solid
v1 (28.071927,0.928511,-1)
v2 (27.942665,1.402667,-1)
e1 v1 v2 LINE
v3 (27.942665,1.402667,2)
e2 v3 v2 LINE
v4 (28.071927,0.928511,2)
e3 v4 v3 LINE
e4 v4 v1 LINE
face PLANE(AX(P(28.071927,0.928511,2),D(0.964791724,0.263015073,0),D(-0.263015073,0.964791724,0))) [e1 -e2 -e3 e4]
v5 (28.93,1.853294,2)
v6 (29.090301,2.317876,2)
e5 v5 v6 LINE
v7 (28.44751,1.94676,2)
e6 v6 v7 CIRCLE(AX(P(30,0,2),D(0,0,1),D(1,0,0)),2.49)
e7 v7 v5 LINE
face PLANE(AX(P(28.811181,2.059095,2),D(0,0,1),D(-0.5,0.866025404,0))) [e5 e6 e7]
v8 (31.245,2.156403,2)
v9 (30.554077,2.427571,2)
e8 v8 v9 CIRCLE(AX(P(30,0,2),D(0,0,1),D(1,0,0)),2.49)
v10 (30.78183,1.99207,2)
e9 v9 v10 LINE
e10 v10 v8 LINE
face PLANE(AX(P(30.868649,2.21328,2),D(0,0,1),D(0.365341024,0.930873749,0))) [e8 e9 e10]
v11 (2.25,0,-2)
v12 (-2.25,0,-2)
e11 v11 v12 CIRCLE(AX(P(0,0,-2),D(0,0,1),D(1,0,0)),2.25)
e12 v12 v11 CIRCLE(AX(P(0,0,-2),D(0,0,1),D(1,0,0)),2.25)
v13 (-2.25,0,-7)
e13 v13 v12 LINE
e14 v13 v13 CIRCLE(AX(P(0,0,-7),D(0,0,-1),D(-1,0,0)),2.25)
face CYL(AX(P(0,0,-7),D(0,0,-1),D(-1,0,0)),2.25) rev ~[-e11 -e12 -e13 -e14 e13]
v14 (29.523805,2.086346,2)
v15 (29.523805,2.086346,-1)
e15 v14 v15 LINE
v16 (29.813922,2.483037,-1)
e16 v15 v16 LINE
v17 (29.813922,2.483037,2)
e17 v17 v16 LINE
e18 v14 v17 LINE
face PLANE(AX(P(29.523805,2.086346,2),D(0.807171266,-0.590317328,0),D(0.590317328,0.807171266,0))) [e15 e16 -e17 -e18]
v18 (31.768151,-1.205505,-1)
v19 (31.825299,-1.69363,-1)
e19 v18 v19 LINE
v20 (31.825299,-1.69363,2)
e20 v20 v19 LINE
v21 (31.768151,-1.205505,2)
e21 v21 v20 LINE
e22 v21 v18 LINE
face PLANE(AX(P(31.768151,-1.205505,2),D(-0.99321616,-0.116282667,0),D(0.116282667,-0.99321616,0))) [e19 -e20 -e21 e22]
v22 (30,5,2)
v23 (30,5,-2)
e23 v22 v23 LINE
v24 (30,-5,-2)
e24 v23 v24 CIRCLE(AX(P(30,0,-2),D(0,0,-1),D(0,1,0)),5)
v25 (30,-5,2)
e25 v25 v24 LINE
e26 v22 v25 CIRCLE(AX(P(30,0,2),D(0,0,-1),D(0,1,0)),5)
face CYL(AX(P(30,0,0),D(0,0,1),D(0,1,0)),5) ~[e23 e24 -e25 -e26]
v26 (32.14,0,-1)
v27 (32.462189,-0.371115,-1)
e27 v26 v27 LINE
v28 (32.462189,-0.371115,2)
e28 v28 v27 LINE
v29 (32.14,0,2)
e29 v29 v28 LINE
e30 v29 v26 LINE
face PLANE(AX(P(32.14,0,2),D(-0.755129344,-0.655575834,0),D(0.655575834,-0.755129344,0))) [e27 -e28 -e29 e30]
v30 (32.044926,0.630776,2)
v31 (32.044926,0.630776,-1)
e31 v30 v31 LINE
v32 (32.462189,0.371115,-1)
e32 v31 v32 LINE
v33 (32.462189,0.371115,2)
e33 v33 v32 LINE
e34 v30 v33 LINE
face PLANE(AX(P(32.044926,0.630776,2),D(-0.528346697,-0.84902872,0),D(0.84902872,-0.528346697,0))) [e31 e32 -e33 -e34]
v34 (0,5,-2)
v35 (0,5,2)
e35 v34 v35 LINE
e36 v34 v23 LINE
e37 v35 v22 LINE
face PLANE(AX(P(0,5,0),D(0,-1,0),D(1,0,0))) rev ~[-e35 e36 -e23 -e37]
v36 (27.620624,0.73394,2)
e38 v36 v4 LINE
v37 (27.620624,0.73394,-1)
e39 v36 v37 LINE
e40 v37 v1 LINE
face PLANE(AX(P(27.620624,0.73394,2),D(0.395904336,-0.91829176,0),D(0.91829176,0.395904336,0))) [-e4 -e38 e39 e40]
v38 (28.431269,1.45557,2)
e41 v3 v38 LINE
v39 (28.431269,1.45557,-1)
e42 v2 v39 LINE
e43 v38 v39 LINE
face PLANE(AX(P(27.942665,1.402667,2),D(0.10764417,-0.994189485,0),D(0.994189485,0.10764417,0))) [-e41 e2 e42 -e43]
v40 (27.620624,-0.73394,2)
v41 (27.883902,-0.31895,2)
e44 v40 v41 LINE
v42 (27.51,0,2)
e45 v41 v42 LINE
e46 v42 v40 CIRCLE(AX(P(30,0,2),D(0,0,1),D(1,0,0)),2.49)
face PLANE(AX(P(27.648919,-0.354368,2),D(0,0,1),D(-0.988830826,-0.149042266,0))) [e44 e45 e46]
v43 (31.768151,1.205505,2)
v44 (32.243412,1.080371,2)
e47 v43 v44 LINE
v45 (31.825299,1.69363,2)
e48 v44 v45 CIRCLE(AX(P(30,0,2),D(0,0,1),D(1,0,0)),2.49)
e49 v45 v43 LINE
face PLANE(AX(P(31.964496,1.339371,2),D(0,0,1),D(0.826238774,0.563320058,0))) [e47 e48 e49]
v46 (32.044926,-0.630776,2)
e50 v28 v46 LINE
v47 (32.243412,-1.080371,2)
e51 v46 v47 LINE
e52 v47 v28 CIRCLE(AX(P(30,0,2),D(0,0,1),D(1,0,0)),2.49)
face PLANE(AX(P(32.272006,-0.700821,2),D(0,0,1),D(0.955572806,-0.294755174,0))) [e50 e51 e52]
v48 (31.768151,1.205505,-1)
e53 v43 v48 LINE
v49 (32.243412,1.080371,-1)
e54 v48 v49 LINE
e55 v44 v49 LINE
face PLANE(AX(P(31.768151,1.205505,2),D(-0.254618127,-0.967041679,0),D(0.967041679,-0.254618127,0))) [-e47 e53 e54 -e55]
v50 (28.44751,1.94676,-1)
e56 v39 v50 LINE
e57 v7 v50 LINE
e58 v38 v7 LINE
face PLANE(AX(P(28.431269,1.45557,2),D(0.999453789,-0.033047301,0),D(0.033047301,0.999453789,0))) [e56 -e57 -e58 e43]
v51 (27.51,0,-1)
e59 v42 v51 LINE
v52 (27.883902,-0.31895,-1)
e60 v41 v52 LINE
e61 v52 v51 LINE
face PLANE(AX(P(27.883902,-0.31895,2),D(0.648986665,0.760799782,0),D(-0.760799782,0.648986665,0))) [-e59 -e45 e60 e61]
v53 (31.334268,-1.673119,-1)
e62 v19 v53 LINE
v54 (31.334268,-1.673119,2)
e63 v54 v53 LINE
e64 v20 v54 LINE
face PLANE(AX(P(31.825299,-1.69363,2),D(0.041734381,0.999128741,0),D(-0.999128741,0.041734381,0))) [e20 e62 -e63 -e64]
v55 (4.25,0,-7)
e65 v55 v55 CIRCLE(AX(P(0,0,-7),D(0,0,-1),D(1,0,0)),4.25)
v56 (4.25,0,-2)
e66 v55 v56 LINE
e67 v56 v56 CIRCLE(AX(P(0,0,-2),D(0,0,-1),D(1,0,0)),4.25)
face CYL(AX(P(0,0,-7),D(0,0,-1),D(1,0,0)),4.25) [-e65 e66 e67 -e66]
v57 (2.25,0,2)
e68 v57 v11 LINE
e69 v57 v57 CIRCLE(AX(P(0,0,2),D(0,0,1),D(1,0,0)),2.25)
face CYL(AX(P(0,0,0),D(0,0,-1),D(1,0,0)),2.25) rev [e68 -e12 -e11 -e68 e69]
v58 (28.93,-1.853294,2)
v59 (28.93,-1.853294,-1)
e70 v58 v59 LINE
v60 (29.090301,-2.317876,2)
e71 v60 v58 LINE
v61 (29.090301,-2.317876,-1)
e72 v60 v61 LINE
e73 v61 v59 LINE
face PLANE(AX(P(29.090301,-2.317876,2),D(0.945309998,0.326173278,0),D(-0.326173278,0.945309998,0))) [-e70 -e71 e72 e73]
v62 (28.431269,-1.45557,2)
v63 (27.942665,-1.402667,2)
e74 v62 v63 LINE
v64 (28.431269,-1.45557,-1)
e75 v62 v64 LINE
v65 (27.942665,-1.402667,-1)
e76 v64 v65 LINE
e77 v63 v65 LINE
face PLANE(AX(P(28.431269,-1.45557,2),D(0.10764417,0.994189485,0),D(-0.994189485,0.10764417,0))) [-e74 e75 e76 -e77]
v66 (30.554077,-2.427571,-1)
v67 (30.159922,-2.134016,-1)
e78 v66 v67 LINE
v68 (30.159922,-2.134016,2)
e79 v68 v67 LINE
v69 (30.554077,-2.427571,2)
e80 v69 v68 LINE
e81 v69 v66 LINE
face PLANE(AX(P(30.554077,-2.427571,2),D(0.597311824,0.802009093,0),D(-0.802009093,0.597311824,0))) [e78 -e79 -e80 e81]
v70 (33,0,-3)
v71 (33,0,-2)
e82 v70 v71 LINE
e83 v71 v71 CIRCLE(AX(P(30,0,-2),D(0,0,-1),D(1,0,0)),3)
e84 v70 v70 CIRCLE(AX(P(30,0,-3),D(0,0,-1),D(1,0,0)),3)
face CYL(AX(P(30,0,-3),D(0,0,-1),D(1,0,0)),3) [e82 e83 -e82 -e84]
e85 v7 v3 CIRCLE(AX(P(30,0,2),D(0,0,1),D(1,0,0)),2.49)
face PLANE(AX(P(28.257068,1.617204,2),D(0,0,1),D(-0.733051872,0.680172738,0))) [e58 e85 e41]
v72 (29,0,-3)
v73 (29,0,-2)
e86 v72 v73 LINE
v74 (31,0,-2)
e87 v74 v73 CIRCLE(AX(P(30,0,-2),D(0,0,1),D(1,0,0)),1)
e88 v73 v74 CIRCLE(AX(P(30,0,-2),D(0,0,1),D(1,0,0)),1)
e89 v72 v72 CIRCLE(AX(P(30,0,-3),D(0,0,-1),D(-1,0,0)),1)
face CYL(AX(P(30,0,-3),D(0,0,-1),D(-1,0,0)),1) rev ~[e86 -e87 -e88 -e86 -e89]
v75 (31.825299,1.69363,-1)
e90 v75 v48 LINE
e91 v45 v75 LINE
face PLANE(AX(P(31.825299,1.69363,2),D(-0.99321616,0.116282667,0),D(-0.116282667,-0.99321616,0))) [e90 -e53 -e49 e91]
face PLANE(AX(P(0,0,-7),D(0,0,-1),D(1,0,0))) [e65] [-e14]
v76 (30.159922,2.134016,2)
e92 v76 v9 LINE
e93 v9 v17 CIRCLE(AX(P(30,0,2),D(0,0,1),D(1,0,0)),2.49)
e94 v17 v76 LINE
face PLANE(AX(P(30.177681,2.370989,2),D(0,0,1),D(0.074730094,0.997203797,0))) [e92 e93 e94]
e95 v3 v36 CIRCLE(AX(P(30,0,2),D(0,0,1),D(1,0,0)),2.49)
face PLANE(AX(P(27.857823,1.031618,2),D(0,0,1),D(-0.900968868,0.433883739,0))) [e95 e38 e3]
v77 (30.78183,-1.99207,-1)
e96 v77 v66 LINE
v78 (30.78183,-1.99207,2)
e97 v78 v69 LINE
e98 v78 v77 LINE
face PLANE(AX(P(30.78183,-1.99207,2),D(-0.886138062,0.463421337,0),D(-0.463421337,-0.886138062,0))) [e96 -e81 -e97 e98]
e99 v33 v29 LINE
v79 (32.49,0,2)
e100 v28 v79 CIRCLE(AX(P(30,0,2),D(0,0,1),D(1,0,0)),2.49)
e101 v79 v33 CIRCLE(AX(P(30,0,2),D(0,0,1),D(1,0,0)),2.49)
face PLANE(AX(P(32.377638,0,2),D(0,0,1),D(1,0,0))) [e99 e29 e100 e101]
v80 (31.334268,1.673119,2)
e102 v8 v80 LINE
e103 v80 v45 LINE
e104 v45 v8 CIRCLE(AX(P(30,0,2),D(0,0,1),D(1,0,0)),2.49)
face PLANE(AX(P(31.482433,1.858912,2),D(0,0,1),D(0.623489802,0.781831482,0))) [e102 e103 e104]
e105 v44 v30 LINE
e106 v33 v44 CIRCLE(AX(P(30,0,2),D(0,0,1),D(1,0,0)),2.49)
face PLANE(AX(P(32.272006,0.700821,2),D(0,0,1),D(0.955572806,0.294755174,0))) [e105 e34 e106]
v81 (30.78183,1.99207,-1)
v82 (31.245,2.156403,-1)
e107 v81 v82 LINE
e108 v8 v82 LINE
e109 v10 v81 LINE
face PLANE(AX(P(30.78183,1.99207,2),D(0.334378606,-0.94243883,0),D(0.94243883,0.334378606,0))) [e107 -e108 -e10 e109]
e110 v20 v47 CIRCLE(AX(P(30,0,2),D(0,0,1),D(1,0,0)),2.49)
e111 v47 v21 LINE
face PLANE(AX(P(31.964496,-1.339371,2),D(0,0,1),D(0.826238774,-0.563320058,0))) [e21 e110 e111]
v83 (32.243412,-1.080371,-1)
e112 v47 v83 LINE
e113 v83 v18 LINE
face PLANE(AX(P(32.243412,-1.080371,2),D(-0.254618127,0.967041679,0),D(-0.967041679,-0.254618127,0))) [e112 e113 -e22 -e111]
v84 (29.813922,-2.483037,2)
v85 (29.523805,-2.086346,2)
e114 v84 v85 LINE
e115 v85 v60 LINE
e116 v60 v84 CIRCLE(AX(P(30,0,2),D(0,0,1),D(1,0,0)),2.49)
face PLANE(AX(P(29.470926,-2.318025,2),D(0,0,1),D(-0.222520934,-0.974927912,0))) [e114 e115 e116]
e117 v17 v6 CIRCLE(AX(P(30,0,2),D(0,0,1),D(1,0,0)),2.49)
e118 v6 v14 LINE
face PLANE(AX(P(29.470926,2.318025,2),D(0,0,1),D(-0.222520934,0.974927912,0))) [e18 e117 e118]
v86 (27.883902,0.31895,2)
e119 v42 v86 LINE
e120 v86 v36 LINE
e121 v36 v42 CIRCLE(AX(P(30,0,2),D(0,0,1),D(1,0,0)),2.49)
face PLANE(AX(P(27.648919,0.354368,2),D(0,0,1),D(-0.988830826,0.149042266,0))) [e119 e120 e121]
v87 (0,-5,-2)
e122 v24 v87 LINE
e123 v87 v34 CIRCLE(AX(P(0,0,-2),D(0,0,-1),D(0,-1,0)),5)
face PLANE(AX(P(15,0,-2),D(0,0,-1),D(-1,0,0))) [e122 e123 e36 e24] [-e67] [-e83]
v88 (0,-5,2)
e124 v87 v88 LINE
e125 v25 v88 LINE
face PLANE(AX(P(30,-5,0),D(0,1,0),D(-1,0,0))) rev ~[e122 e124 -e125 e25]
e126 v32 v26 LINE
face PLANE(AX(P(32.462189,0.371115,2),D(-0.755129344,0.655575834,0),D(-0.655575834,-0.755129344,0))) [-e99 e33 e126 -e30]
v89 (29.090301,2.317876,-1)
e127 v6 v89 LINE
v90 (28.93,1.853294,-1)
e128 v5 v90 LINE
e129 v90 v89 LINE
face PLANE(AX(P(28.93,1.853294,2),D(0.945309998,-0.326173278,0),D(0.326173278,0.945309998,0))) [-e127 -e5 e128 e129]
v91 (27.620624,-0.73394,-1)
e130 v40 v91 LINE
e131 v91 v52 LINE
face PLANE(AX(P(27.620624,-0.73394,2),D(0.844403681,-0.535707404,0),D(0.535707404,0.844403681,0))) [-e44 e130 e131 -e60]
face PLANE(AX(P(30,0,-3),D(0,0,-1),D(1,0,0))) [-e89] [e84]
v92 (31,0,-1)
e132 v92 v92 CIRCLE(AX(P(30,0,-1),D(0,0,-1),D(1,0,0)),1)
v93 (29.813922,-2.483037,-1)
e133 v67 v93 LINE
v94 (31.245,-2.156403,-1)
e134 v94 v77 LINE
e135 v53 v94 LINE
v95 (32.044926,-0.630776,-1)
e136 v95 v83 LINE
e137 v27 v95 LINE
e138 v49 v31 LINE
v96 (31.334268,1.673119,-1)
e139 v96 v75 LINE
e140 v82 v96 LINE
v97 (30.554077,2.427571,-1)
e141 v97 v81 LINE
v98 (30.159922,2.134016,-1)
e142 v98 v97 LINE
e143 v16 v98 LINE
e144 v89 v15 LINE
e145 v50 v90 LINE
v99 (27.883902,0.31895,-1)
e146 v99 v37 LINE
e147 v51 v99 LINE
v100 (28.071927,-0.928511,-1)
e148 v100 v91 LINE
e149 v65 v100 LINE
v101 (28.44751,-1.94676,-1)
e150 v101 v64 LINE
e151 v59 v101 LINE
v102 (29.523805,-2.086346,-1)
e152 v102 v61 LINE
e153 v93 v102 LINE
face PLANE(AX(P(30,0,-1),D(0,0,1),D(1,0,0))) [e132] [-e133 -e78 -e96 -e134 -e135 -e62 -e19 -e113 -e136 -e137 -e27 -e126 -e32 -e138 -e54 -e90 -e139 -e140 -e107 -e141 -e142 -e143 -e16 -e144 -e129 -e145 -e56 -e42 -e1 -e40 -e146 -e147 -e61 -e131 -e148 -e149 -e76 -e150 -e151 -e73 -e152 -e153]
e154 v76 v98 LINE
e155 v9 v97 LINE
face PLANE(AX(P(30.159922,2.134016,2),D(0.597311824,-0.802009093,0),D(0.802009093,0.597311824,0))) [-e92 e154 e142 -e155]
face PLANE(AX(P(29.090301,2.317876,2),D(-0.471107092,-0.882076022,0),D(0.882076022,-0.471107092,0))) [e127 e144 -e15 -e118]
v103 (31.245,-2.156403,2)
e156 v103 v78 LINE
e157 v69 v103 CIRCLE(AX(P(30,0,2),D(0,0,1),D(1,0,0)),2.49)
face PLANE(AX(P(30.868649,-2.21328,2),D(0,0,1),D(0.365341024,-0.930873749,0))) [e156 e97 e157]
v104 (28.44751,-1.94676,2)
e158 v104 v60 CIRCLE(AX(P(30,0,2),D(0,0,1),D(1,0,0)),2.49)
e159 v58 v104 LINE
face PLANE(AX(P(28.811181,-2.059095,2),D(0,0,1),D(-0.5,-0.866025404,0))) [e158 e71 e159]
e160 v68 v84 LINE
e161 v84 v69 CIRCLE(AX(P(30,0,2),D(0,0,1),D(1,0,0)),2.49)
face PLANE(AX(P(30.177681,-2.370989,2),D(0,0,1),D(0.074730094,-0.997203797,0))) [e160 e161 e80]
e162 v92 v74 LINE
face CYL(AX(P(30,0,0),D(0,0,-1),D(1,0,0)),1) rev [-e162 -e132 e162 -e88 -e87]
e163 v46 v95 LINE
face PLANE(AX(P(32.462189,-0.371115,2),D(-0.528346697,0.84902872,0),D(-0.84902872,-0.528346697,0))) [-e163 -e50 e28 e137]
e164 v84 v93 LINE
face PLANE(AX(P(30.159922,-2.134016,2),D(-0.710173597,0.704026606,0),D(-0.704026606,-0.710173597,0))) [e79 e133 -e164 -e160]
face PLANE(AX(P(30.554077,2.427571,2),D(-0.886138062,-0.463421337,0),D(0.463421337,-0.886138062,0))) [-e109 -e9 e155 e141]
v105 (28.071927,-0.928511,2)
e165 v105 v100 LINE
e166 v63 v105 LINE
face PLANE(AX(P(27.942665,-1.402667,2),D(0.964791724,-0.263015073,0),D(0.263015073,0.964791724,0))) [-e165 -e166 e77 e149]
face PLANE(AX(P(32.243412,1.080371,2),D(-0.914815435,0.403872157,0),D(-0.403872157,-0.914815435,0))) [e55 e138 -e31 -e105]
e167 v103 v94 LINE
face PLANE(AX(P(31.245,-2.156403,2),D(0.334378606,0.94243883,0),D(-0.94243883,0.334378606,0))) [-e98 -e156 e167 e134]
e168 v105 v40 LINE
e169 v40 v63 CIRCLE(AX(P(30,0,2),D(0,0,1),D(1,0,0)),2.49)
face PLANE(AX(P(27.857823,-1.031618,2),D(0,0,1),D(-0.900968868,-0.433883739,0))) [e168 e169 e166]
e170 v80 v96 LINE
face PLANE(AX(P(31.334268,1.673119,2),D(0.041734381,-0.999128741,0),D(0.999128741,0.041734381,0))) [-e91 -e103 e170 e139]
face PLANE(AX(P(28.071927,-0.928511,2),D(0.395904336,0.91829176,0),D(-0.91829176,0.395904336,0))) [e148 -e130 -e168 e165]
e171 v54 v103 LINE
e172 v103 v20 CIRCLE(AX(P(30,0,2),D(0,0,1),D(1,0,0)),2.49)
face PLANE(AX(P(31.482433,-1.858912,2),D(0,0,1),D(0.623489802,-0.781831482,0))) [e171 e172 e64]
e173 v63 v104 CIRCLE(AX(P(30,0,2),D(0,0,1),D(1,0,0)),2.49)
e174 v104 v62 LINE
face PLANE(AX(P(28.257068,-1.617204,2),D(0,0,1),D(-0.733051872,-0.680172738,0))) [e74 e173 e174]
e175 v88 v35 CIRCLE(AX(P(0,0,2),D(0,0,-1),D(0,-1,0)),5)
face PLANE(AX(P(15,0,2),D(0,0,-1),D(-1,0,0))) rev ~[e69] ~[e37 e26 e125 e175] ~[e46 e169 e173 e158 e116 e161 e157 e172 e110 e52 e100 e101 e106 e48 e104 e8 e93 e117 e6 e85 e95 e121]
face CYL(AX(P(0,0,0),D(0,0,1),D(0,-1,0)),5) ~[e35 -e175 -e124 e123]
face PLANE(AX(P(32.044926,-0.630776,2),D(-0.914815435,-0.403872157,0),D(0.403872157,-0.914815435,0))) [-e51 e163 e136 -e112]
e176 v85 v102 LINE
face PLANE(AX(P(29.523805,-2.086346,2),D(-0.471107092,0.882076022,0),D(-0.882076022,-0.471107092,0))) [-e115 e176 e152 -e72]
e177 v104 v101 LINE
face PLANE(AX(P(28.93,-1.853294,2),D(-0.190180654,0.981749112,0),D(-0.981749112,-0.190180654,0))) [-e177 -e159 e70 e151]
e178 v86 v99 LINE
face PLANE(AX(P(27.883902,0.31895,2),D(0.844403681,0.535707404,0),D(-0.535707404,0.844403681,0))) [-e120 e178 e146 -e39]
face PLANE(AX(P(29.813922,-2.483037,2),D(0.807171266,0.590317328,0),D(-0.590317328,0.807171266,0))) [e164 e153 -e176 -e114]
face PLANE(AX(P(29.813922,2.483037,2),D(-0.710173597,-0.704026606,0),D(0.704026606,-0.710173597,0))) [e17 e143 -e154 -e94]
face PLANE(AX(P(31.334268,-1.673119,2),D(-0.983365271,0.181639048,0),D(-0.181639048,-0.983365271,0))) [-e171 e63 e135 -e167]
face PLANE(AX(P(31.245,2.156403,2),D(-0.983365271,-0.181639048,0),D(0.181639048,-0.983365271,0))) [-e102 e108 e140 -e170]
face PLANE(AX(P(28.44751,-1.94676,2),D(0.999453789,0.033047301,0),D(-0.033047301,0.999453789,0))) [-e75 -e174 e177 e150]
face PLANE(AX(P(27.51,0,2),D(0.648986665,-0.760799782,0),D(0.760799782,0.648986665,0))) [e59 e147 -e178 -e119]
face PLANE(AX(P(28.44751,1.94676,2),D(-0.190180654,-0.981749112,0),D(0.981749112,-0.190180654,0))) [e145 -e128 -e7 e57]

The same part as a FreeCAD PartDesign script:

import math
import FreeCAD as App
import Part
import Sketcher

doc = App.newDocument("Part")
body = doc.addObject("PartDesign::Body", "Body")

# Sketch on XY plane
sketch1 = body.newObject("Sketcher::SketchObject", "Sketch")
sketch1.AttachmentSupport = (doc.getObject("XY_Plane"), [""])
sketch1.MapMode = "FlatFace"
sketch1.addGeometry(Part.LineSegment(App.Vector(30, 5, 0), App.Vector(0, 5, 0)), False)
sketch1.addGeometry(Part.ArcOfCircle(Part.Circle(App.Vector(0, 0, 0), App.Vector(0, 0, 1), 5), math.radians(90), math.radians(270)), False)
sketch1.addGeometry(Part.LineSegment(App.Vector(0, -5, 0), App.Vector(30, -5, 0)), False)
sketch1.addGeometry(Part.ArcOfCircle(Part.Circle(App.Vector(30, 0, 0), App.Vector(0, 0, 1), 5), math.radians(-90), math.radians(90)), False)
sketch1.addGeometry(Part.Circle(App.Vector(30, 0, 0), App.Vector(0, 0, 1), 1), False)
sketch1.addGeometry(Part.Circle(App.Vector(0, 0, 0), App.Vector(0, 0, 1), 2.2), False)
sketch1.addConstraint(Sketcher.Constraint("Tangent", 0, 2, 1, 1))
sketch1.addConstraint(Sketcher.Constraint("Tangent", 1, 2, 2, 1))
sketch1.addConstraint(Sketcher.Constraint("Tangent", 2, 2, 3, 1))
sketch1.addConstraint(Sketcher.Constraint("Tangent", 3, 2, 0, 1))
sketch1.addConstraint(Sketcher.Constraint("Horizontal", 0))
sketch1.addConstraint(Sketcher.Constraint("Horizontal", 2))
sketch1.addConstraint(Sketcher.Constraint("Coincident", 1, 3, -1, 1))
sketch1.addConstraint(Sketcher.Constraint("Coincident", 5, 3, -1, 1))
sketch1.addConstraint(Sketcher.Constraint("Coincident", 4, 3, 3, 3))
sketch1.addConstraint(Sketcher.Constraint("Diameter", 4, 2.0))
sketch1.addConstraint(Sketcher.Constraint("Radius", 1, 5.0))
sketch1.addConstraint(Sketcher.Constraint("Diameter", 5, 4.5))
sketch1.addConstraint(Sketcher.Constraint("DistanceX", 0, 2, 0, 1, 30.0))
pad1 = body.newObject("PartDesign::Pad", "Pad")
pad1.Profile = sketch1
pad1.Length = 4
pad1.Midplane = True

# Sketch on XY plane
sketch2 = body.newObject("Sketcher::SketchObject", "Sketch001")
sketch2.AttachmentSupport = (doc.getObject("XY_Plane"), [""])
sketch2.MapMode = "FlatFace"
sketch2.AttachmentOffset = App.Placement(App.Vector(0, 0, 2), App.Rotation())
sketch2.addGeometry(Part.Circle(App.Vector(30, 0, 0), App.Vector(0, 0, 1), 2.5), False)
sketch2.addConstraint(Sketcher.Constraint("PointOnObject", 0, 3, -1))
sketch2.addConstraint(Sketcher.Constraint("Diameter", 0, 4.98))
sketch2.addConstraint(Sketcher.Constraint("DistanceX", -1, 1, 0, 3, 30.0))
pocket1 = body.newObject("PartDesign::Pocket", "Pocket")
pocket1.Profile = sketch2
pocket1.Length = 3

# Sketch on XY plane
sketch3 = body.newObject("Sketcher::SketchObject", "Sketch002")
sketch3.AttachmentSupport = (doc.getObject("XY_Plane"), [""])
sketch3.MapMode = "FlatFace"
sketch3.AttachmentOffset = App.Placement(App.Vector(0, 0, -3), App.Rotation())
sketch3.addGeometry(Part.Circle(App.Vector(30, 0, 0), App.Vector(0, 0, 1), 3), False)
sketch3.addGeometry(Part.Circle(App.Vector(30, 0, 0), App.Vector(0, 0, 1), 1), False)
sketch3.addConstraint(Sketcher.Constraint("Coincident", 1, 3, 0, 3))
sketch3.addConstraint(Sketcher.Constraint("PointOnObject", 0, 3, -1))
sketch3.addConstraint(Sketcher.Constraint("Diameter", 0, 6.0))
sketch3.addConstraint(Sketcher.Constraint("Diameter", 1, 2.0))
sketch3.addConstraint(Sketcher.Constraint("DistanceX", -1, 1, 0, 3, 30.0))
pad2 = body.newObject("PartDesign::Pad", "Pad001")
pad2.Profile = sketch3
pad2.Length = 1

# Sketch on XY plane
sketch4 = body.newObject("Sketcher::SketchObject", "Sketch003")
sketch4.AttachmentSupport = (doc.getObject("XY_Plane"), [""])
sketch4.MapMode = "FlatFace"
sketch4.AttachmentOffset = App.Placement(App.Vector(0, 0, -7), App.Rotation())
sketch4.addGeometry(Part.Circle(App.Vector(0, 0, 0), App.Vector(0, 0, 1), 4.2), False)
sketch4.addGeometry(Part.Circle(App.Vector(0, 0, 0), App.Vector(0, 0, 1), 2.2), False)
sketch4.addConstraint(Sketcher.Constraint("Coincident", 0, 3, -1, 1))
sketch4.addConstraint(Sketcher.Constraint("Coincident", 1, 3, -1, 1))
sketch4.addConstraint(Sketcher.Constraint("Diameter", 0, 8.5))
sketch4.addConstraint(Sketcher.Constraint("Diameter", 1, 4.5))
pad3 = body.newObject("PartDesign::Pad", "Pad002")
pad3.Profile = sketch4
pad3.Length = 5

# Sketch on XY plane
sketch5 = body.newObject("Sketcher::SketchObject", "Sketch004")
sketch5.AttachmentSupport = (doc.getObject("XY_Plane"), [""])
sketch5.MapMode = "FlatFace"
sketch5.AttachmentOffset = App.Placement(App.Vector(0, 0, 2), App.Rotation())
sketch5.addGeometry(Part.LineSegment(App.Vector(32.46, 0.37, 0), App.Vector(32.14, 0, 0)), False)
sketch5.addGeometry(Part.LineSegment(App.Vector(32.14, 0, 0), App.Vector(32.46, -0.37, 0)), False)
sketch5.addGeometry(Part.ArcOfCircle(Part.Circle(App.Vector(30, 0, 0), App.Vector(0, 0, 1), 2.49), math.radians(-8.57), math.radians(8.57)), False)
sketch5.addConstraint(Sketcher.Constraint("Coincident", 0, 2, 1, 1))
sketch5.addConstraint(Sketcher.Constraint("Coincident", 1, 2, 2, 1))
sketch5.addConstraint(Sketcher.Constraint("Coincident", 2, 2, 0, 1))
sketch5.addConstraint(Sketcher.Constraint("Symmetric", 1, 2, 2, 2, -1))
sketch5.addConstraint(Sketcher.Constraint("PointOnObject", 0, 2, -1))
sketch5.addConstraint(Sketcher.Constraint("Radius", 2, 2.49))
sketch5.addConstraint(Sketcher.Constraint("DistanceX", -1, 1, 2, 3, 30.0))
sketch5.addConstraint(Sketcher.Constraint("DistanceX", -1, 1, 0, 2, 32.14))
sketch5.addConstraint(Sketcher.Constraint("Distance", 0, 0.491459))
pad4 = body.newObject("PartDesign::Pad", "Pad003")
pad4.Profile = sketch5
pad4.Length = 3.2
pad4.Reversed = True
doc.recompute()

datumline = body.newObject("PartDesign::Line", "DatumLine")
datumline.Placement = App.Placement(App.Vector(30, 0, 0), App.Rotation(App.Vector(0, 0, 1), App.Vector(0, 0, 1)))
polarpattern = body.newObject("PartDesign::PolarPattern", "PolarPattern")
polarpattern.Originals = [pad4]
polarpattern.Axis = (datumline, [""])
polarpattern.Angle = 360
polarpattern.Occurrences = 21
body.Tip = polarpattern

doc.recompute()
